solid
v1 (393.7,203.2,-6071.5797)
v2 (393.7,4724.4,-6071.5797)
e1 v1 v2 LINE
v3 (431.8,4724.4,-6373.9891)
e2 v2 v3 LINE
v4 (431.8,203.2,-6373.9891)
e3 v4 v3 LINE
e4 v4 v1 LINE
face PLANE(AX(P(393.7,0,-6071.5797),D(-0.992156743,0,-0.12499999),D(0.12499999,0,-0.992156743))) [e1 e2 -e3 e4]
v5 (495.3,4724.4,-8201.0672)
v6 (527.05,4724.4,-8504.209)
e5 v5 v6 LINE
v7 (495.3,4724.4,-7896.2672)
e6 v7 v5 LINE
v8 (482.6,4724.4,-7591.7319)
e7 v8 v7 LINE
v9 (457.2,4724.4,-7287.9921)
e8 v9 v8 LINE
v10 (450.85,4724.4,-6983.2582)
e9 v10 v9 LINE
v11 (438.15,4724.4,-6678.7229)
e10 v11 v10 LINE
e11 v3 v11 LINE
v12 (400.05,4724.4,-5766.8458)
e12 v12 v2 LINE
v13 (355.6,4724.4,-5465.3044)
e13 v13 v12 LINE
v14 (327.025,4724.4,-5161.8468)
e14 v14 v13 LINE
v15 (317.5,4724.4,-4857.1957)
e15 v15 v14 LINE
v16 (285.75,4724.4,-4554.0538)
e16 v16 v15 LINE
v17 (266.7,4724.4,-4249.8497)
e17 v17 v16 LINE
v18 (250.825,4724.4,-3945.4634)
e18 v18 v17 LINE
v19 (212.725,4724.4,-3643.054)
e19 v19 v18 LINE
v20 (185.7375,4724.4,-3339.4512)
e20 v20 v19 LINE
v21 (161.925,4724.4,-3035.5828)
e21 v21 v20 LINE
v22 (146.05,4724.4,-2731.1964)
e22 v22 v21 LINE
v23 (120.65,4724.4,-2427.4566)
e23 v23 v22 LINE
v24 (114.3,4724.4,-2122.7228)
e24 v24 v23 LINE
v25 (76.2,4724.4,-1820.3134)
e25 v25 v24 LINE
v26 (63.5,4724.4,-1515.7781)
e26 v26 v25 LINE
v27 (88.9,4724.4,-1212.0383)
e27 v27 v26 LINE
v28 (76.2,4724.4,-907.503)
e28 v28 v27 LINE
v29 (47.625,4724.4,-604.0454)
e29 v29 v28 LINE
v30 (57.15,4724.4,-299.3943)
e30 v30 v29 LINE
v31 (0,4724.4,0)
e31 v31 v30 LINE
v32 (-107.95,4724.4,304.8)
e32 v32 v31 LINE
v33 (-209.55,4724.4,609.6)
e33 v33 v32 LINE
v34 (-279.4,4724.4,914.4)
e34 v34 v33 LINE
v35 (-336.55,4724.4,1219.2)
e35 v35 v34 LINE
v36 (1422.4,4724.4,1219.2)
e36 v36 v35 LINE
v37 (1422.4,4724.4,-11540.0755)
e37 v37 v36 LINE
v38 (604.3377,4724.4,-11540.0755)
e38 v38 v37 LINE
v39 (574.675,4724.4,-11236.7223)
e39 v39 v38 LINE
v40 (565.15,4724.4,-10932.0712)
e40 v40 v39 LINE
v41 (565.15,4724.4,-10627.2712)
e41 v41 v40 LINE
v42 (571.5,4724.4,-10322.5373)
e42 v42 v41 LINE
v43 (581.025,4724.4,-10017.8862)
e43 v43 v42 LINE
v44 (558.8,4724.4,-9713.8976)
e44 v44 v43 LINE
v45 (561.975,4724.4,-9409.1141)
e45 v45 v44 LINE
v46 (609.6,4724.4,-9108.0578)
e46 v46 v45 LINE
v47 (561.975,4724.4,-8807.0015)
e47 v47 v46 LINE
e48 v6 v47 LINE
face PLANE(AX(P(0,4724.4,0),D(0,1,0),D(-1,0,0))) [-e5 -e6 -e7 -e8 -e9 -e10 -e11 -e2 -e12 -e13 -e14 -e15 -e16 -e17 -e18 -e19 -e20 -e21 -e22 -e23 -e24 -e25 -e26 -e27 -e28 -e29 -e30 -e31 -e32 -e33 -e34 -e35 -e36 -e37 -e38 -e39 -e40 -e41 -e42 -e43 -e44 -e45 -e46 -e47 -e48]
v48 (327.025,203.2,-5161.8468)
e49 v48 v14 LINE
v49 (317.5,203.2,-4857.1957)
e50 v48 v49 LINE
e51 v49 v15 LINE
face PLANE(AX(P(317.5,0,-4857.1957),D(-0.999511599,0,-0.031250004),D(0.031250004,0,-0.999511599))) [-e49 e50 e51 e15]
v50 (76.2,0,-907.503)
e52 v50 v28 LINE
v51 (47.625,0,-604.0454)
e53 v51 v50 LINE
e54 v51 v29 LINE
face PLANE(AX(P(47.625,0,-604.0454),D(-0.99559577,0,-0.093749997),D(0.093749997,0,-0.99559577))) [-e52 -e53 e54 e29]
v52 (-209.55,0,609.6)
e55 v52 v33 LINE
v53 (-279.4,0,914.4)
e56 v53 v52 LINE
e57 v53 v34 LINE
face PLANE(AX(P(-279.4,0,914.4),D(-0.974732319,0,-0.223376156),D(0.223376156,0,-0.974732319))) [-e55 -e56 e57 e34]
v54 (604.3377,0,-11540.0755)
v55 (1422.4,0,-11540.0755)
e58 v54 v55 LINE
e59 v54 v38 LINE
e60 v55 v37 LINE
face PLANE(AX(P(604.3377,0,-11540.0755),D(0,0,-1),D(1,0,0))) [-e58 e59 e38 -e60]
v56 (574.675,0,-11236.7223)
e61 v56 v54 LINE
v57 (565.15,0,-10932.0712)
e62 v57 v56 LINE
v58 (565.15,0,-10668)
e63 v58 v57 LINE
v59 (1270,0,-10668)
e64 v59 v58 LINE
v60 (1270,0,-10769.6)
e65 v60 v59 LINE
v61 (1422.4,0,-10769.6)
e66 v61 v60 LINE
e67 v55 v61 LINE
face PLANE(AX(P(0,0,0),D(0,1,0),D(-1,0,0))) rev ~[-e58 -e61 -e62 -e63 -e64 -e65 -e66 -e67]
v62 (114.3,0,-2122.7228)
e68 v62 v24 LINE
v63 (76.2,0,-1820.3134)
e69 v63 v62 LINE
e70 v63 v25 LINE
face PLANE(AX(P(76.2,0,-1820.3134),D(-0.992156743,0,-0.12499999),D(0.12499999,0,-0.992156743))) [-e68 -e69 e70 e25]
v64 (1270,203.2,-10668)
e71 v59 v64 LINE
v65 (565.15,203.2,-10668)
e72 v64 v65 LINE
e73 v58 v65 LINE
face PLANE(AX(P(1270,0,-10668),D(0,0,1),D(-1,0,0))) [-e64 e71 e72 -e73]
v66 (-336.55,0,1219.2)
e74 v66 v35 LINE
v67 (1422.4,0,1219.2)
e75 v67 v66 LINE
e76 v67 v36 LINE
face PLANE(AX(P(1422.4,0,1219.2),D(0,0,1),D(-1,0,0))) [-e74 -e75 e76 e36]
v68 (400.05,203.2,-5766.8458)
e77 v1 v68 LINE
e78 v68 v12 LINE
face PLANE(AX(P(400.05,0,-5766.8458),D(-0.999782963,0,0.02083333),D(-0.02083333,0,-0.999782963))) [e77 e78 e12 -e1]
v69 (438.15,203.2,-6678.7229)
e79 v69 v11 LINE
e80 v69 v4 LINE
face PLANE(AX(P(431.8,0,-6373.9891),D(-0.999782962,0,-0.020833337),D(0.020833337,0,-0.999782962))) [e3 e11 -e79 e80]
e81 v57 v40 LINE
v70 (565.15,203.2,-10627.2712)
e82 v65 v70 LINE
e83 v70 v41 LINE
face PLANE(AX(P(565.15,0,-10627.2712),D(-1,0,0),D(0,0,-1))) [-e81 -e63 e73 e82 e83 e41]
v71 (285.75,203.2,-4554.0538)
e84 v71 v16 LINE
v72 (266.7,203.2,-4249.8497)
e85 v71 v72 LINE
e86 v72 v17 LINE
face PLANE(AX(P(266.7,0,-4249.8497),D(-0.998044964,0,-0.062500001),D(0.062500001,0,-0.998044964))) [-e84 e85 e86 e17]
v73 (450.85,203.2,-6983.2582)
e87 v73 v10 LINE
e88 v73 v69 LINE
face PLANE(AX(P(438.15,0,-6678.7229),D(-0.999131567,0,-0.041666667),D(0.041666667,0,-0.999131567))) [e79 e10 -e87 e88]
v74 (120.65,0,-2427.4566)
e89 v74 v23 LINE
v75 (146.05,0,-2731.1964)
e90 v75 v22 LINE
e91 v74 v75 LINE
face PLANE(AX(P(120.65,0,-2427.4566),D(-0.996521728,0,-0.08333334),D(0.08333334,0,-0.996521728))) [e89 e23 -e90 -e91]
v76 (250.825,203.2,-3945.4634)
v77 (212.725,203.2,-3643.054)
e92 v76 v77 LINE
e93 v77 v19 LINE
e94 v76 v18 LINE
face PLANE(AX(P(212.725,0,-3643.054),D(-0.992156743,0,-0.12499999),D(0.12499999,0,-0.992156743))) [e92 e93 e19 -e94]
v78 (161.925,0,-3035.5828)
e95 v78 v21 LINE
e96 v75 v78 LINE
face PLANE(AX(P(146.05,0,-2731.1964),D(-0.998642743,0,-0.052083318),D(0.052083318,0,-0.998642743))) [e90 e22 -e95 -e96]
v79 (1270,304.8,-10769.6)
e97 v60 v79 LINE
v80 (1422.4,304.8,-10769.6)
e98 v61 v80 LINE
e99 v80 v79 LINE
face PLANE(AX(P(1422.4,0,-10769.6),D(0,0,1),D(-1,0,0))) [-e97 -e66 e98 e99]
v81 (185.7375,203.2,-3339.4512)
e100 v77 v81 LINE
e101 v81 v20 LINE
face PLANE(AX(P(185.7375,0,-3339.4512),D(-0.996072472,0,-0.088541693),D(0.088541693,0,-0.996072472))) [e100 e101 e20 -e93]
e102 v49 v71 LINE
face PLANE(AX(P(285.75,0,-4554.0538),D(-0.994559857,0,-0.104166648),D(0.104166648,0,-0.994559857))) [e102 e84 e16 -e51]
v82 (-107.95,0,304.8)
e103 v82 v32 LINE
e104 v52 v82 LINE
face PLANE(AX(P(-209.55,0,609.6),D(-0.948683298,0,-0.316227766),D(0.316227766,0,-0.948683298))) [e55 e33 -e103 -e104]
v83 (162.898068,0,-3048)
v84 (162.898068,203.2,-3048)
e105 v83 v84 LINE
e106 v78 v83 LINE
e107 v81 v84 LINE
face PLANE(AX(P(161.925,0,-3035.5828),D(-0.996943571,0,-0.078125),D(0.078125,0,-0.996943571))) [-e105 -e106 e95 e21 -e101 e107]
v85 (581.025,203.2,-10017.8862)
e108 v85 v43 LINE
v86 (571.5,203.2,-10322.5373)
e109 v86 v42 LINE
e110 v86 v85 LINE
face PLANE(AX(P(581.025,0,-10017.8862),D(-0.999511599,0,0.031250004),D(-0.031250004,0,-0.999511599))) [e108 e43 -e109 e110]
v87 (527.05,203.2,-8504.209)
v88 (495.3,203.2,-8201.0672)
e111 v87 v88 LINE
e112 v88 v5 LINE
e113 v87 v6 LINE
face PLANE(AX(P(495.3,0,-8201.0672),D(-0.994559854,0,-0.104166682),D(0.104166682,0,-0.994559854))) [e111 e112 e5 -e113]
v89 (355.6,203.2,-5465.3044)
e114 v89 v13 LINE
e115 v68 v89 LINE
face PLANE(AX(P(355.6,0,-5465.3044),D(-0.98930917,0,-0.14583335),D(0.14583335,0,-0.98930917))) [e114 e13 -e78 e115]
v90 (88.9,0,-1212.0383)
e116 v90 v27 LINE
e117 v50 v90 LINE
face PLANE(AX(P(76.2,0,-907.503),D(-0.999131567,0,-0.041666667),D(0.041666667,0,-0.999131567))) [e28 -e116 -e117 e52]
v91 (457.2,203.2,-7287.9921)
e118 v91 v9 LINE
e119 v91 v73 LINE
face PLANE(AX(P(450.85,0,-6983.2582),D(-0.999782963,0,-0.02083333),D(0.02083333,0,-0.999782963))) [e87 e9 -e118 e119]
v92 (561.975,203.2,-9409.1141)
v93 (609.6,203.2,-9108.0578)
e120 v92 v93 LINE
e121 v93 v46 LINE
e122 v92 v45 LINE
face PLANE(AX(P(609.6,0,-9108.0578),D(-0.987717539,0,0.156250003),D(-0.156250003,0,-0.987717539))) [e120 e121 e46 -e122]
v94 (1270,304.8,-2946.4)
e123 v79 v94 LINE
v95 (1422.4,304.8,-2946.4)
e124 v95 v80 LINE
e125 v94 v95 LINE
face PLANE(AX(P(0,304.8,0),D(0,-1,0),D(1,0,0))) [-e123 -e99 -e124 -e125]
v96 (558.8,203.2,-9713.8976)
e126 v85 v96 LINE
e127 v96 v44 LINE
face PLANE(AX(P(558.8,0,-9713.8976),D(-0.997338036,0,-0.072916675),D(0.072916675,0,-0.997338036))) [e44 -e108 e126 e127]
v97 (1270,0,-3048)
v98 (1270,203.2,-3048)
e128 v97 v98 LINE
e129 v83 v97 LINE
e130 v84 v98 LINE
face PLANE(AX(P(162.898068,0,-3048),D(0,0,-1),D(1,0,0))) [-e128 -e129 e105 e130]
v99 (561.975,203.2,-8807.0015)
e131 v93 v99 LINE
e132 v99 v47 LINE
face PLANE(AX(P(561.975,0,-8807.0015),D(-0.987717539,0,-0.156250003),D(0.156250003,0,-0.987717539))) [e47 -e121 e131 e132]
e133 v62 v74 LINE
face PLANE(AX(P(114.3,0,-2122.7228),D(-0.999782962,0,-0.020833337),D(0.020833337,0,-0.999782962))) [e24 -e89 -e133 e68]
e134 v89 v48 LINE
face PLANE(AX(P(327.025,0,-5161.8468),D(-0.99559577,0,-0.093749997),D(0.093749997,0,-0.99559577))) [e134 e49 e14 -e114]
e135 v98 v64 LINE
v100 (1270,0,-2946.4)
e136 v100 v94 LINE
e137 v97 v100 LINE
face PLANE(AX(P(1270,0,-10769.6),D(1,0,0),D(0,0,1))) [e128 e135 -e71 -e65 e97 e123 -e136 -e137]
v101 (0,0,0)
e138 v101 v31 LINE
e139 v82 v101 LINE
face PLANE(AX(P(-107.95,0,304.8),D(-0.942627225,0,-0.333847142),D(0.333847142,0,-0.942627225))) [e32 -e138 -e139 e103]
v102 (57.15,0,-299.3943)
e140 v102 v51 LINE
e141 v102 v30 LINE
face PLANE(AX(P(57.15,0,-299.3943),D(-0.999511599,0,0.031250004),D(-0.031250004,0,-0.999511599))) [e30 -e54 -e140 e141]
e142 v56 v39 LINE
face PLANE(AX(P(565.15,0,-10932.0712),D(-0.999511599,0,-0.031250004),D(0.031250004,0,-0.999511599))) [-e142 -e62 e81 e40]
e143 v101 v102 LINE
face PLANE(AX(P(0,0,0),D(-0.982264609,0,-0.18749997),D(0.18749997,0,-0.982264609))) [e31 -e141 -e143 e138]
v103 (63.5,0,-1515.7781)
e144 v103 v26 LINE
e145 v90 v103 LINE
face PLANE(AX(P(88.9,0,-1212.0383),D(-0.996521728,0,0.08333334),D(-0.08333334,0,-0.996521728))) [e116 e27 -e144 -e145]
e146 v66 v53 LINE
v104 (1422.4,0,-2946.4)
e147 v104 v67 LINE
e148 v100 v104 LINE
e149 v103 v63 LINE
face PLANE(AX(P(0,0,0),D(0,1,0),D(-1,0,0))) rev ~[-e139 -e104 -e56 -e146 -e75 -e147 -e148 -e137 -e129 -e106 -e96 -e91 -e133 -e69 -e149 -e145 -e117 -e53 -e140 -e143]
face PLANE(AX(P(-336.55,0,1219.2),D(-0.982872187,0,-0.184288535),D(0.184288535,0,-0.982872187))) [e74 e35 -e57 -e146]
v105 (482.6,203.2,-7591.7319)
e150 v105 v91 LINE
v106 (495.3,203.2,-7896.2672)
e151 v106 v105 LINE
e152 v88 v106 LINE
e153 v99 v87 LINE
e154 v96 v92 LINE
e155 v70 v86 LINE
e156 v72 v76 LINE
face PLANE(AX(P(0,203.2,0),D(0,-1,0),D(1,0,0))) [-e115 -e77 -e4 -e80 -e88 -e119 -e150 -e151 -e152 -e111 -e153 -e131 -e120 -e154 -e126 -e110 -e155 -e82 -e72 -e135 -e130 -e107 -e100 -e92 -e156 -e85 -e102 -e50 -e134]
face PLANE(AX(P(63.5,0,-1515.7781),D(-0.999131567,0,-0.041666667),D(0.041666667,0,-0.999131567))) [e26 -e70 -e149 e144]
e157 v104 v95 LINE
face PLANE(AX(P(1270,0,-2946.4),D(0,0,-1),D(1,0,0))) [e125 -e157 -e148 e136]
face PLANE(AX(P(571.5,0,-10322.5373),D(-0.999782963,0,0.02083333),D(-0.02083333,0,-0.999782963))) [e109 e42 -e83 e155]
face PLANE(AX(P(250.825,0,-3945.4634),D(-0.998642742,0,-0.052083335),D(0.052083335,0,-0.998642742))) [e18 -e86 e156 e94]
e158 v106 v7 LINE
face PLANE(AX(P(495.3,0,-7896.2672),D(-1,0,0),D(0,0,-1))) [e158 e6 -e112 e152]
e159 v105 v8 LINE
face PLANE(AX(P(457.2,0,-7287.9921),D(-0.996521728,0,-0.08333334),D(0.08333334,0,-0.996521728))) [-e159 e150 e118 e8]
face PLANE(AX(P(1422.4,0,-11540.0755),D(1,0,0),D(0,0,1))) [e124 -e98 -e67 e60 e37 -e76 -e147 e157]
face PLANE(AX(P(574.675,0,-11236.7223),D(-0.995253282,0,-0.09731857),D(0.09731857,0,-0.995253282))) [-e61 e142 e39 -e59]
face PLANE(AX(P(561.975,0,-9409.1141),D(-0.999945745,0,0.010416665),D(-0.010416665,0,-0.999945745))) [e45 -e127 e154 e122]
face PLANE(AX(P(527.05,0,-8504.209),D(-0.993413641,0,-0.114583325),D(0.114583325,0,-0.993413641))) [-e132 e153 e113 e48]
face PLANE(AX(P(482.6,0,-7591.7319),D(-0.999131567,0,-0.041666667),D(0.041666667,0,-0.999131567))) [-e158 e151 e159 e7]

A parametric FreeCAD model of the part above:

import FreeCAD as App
import Part
import Sketcher
Q = App.Units.Quantity


def add_polygon(sketch, points):
    """Adds a closed chain of lines whose ends are joined by coincident constraints."""
    first, n = sketch.GeometryCount, len(points)
    for a, b in zip(points, points[1:] + points[:1]):
        sketch.addGeometry(Part.LineSegment(App.Vector(*a, 0), App.Vector(*b, 0)), False)
    for i in range(n):
        sketch.addConstraint(Sketcher.Constraint("Coincident", first + i, 2, first + (i + 1) % n, 1))

doc = App.newDocument("Part")
params = doc.addObject("Spreadsheet::Sheet", "Params")
for row, (alias, value) in enumerate([
    ("sketch1_height", "12 in"),
    ("sketch1_length", "12 in"),
    ("sketch1_width", "69.25 in"),
    ("pad1_length", "186 in"),
    ("sketch2_width", "6 in"),
    ("sketch2_height", "308 in"),
    ("pocket1_length", "12 in"),
    ("sketch3_width", "55.625 in"),
    ("sketch3_height", "300 in"),
    ("pocket2_length", "8 in"),
], start=1):
    params.set(f"A{row}", alias)
    params.set(f"B{row}", "=" + value)
    params.setAlias(f"B{row}", alias)

body = doc.addObject("PartDesign::Body", "Body")

# Sketch on XZ plane
sketch1 = body.newObject("Sketcher::SketchObject", "Sketch")
sketch1.AttachmentSupport = (doc.getObject("XZ_Plane"), [""])
sketch1.MapMode = "FlatFace"
add_polygon(sketch1, [(-279.4, 914.4), (-336.55, 1219.2), (1422.4, 1219.2), (1422.4, -11540.0755), (604.3377, -11540.0755), (574.675, -11236.7223), (565.15, -10932.0712), (565.15, -10627.2712), (571.5, -10322.5373), (581.025, -10017.8862), (558.8, -9713.8976), (561.975, -9409.1141), (609.6, -9108.0578), (561.975, -8807.0015), (527.05, -8504.209), (495.3, -8201.0672), (495.3, -7896.2672), (482.6, -7591.7319), (457.2, -7287.9921), (450.85, -6983.2582), (438.15, -6678.7229), (431.8, -6373.9891), (393.7, -6071.5797), (400.05, -5766.8458), (355.6, -5465.3044), (327.025, -5161.8468), (317.5, -4857.1957), (285.75, -4554.0538), (266.7, -4249.8497), (250.825, -3945.4634), (212.725, -3643.054), (185.7375, -3339.4512), (161.925, -3035.5828), (146.05, -2731.1964), (120.65, -2427.4566), (114.3, -2122.7228), (76.2, -1820.3134), (63.5, -1515.7781), (88.9, -1212.0383), (76.2, -907.503), (47.625, -604.0454), (57.15, -299.3943), (0, 0), (-107.95, 304.8), (-209.55, 609.6)])  # lines 0-44
sketch1.addConstraint([
    Sketcher.Constraint("Horizontal", 1),
    Sketcher.Constraint("Vertical", 2),
    Sketcher.Constraint("Horizontal", 3),
    Sketcher.Constraint("Vertical", 6),
    Sketcher.Constraint("Vertical", 15),
    Sketcher.Constraint("Coincident", 41, 2, -1, 1),
    Sketcher.Constraint("Parallel", 16, 19),
    Sketcher.Constraint("Parallel", 18, 20),
    Sketcher.Constraint("Parallel", 7, 22),
    Sketcher.Constraint("Parallel", 5, 25),
    Sketcher.Constraint("Parallel", 14, 26),
    Sketcher.Constraint("Parallel", 21, 29),
    Sketcher.Constraint("Parallel", 28, 32),
    Sketcher.Constraint("Parallel", 17, 33),
    Sketcher.Constraint("Parallel", 20, 34),
    Sketcher.Constraint("Parallel", 29, 35),
    Sketcher.Constraint("Parallel", 19, 36),
    Sketcher.Constraint("Parallel", 36, 38),
    Sketcher.Constraint("Parallel", 24, 39),
    Sketcher.Constraint("Parallel", 8, 40),
    Sketcher.Constraint("Vertical", 10, 2, 12, 2),
    Sketcher.Constraint("Vertical", 35, 2, 38, 2),
    Sketcher.Constraint("Equal", 6, 15),
    Sketcher.Constraint("Equal", 4, 5),
    Sketcher.Constraint("Equal", 5, 7),
    Sketcher.Constraint("Equal", 7, 8),
    Sketcher.Constraint("Equal", 8, 9),
    Sketcher.Constraint("Equal", 9, 10),
    Sketcher.Constraint("Equal", 10, 11),
    Sketcher.Constraint("Equal", 11, 12),
    Sketcher.Constraint("Equal", 12, 13),
    Sketcher.Constraint("Equal", 13, 14),
    Sketcher.Constraint("Equal", 14, 16),
    Sketcher.Constraint("Equal", 16, 17),
    Sketcher.Constraint("Equal", 17, 18),
    Sketcher.Constraint("Equal", 18, 19),
    Sketcher.Constraint("Equal", 19, 20),
    Sketcher.Constraint("Equal", 20, 21),
    Sketcher.Constraint("Equal", 21, 22),
    Sketcher.Constraint("Equal", 22, 23),
    Sketcher.Constraint("Equal", 23, 24),
    Sketcher.Constraint("Equal", 24, 25),
    Sketcher.Constraint("Equal", 25, 26),
    Sketcher.Constraint("Equal", 26, 27),
    Sketcher.Constraint("Equal", 27, 28),
    Sketcher.Constraint("Equal", 28, 29),
    Sketcher.Constraint("Equal", 29, 30),
    Sketcher.Constraint("Equal", 30, 31),
    Sketcher.Constraint("Equal", 31, 32),
    Sketcher.Constraint("Equal", 32, 33),
    Sketcher.Constraint("Equal", 33, 34),
    Sketcher.Constraint("Equal", 34, 35),
    Sketcher.Constraint("Equal", 35, 36),
    Sketcher.Constraint("Equal", 36, 37),
    Sketcher.Constraint("Equal", 37, 38),
    Sketcher.Constraint("Equal", 38, 39),
    Sketcher.Constraint("Equal", 39, 40),
    Sketcher.Constraint("Equal", 40, 41),
    Sketcher.Constraint("DistanceY", 6, 1, 6, 2, Q("12 in")),
    Sketcher.Constraint("Distance", 4, Q("12 in")),
    Sketcher.Constraint("DistanceY", -1, 1, 0, 2, Q("48 in")),
    Sketcher.Constraint("DistanceX", -1, 1, 16, 2, Q("19 in")),
    Sketcher.Constraint("DistanceX", -1, 1, 17, 2, Q("18 in")),
    Sketcher.Constraint("DistanceX", -1, 1, 20, 2, Q("17 in")),
    Sketcher.Constraint("DistanceY", -1, 1, 42, 2, Q("12 in")),
    Sketcher.Constraint("DistanceY", 42, 2, 43, 2, Q("12 in")),
    Sketcher.Constraint("DistanceY", 44, 2, 0, 2, Q("12 in")),
    Sketcher.Constraint("DistanceX", -1, 1, 37, 2, Q("3.5 in")),
    Sketcher.Constraint("DistanceX", 7, 2, 2, 2, Q("33.5 in")),
    Sketcher.Constraint("DistanceX", 21, 2, 16, 2, Q("3.5 in")),
    Sketcher.Constraint("DistanceX", 27, 2, 23, 2, Q("3.5 in")),
    Sketcher.Constraint("DistanceX", 31, 2, 28, 2, Q("3.5 in")),
    Sketcher.Constraint("DistanceX", 13, 2, 9, 2, Q("1.25 in")),
    Sketcher.Constraint("DistanceX", 14, 2, 13, 2, Q("1.25 in")),
    Sketcher.Constraint("DistanceX", 18, 2, 16, 2, Q("1.25 in")),
    Sketcher.Constraint("DistanceX", 22, 2, 20, 2, Q("1.25 in")),
    Sketcher.Constraint("DistanceX", 40, 2, 37, 2, Q("1.25 in")),
    Sketcher.Constraint("DistanceX", -1, 1, 8, 2, Q("22.875 in")),
    Sketcher.Constraint("DistanceX", -1, 1, 1, 2, Q("56 in")),
    Sketcher.Constraint("DistanceX", -1, 1, 11, 2, Q("24 in")),
    Sketcher.Constraint("DistanceX", -1, 1, 23, 2, Q("14 in")),
    Sketcher.Constraint("DistanceX", 44, 2, -1, 1, Q("11 in")),
    Sketcher.Constraint("DistanceX", 25, 2, 21, 2, Q("3 in")),
    Sketcher.Constraint("DistanceX", 0, 2, 42, 2, Q("9 in")),
    Sketcher.Constraint("DistanceX", 43, 2, 42, 2, Q("4 in")),
    Sketcher.Constraint("DistanceX", 1, 1, 1, 2, Q("69.25 in")),
    Sketcher.Constraint("Angle", 11, Q("81.0107 deg")),
    Sketcher.Constraint("Angle", 30, Q("95.0797 deg")),
    Sketcher.Constraint("DistanceX", 3, 2, 3, 1, Q("818.0623 mm")),
])
sketch1.setExpression("Constraints[103]", "Params.sketch1_height")
sketch1.setExpression("Constraints[104]", "Params.sketch1_length")
sketch1.setExpression("Constraints[130]", "Params.sketch1_width")
pad1 = body.newObject("PartDesign::Pad", "Pad")
pad1.Profile = sketch1
pad1.setExpression("Length", "Params.pad1_length")
pad1.Reversed = True

# Sketch on XZ plane
sketch2 = body.newObject("Sketcher::SketchObject", "Sketch001")
sketch2.AttachmentSupport = (doc.getObject("XZ_Plane"), [""])
sketch2.MapMode = "FlatFace"
add_polygon(sketch2, [(1422.4, -10769.6), (1422.4, -2946.4), (1270, -2946.4), (1270, -10769.6)])  # lines 0-3
sketch2.addConstraint([
    Sketcher.Constraint("Vertical", 0),
    Sketcher.Constraint("Horizontal", 1),
    Sketcher.Constraint("Vertical", 2),
    Sketcher.Constraint("Horizontal", 3),
    Sketcher.Constraint("DistanceX", 1, 2, 1, 1, Q("6 in")),
    Sketcher.Constraint("DistanceY", 0, 1, 0, 2, Q("308 in")),
    Sketcher.Constraint("DistanceY", 0, 2, -1, 1, Q("116 in")),
    Sketcher.Constraint("DistanceX", -1, 1, 0, 2, Q("56 in")),
])
sketch2.setExpression("Constraints[8]", "Params.sketch2_width")
sketch2.setExpression("Constraints[9]", "Params.sketch2_height")
pocket1 = body.newObject("PartDesign::Pocket", "Pocket")
pocket1.Profile = sketch2
pocket1.setExpression("Length", "Params.pocket1_length")

# Sketch on XZ plane
sketch3 = body.newObject("Sketcher::SketchObject", "Sketch002")
sketch3.AttachmentSupport = (doc.getObject("XZ_Plane"), [""])
sketch3.MapMode = "FlatFace"
add_polygon(sketch3, [(-142.875, -10668), (1270, -10668), (1270, -3048), (-142.875, -3048)])  # lines 0-3
sketch3.addConstraint([
    Sketcher.Constraint("Horizontal", 0),
    Sketcher.Constraint("Vertical", 1),
    Sketcher.Constraint("Horizontal", 2),
    Sketcher.Constraint("Vertical", 3),
    Sketcher.Constraint("DistanceX", 0, 1, 0, 2, Q("55.625 in")),
    Sketcher.Constraint("DistanceY", 1, 1, 1, 2, Q("300 in")),
    Sketcher.Constraint("DistanceX", -1, 1, 0, 2, Q("50 in")),
    Sketcher.Constraint("DistanceY", 0, 2, -1, 1, Q("420 in")),
])
sketch3.setExpression("Constraints[8]", "Params.sketch3_width")
sketch3.setExpression("Constraints[9]", "Params.sketch3_height")
pocket2 = body.newObject("PartDesign::Pocket", "Pocket001")
pocket2.Profile = sketch3
pocket2.setExpression("Length", "Params.pocket2_length")

doc.recompute()
